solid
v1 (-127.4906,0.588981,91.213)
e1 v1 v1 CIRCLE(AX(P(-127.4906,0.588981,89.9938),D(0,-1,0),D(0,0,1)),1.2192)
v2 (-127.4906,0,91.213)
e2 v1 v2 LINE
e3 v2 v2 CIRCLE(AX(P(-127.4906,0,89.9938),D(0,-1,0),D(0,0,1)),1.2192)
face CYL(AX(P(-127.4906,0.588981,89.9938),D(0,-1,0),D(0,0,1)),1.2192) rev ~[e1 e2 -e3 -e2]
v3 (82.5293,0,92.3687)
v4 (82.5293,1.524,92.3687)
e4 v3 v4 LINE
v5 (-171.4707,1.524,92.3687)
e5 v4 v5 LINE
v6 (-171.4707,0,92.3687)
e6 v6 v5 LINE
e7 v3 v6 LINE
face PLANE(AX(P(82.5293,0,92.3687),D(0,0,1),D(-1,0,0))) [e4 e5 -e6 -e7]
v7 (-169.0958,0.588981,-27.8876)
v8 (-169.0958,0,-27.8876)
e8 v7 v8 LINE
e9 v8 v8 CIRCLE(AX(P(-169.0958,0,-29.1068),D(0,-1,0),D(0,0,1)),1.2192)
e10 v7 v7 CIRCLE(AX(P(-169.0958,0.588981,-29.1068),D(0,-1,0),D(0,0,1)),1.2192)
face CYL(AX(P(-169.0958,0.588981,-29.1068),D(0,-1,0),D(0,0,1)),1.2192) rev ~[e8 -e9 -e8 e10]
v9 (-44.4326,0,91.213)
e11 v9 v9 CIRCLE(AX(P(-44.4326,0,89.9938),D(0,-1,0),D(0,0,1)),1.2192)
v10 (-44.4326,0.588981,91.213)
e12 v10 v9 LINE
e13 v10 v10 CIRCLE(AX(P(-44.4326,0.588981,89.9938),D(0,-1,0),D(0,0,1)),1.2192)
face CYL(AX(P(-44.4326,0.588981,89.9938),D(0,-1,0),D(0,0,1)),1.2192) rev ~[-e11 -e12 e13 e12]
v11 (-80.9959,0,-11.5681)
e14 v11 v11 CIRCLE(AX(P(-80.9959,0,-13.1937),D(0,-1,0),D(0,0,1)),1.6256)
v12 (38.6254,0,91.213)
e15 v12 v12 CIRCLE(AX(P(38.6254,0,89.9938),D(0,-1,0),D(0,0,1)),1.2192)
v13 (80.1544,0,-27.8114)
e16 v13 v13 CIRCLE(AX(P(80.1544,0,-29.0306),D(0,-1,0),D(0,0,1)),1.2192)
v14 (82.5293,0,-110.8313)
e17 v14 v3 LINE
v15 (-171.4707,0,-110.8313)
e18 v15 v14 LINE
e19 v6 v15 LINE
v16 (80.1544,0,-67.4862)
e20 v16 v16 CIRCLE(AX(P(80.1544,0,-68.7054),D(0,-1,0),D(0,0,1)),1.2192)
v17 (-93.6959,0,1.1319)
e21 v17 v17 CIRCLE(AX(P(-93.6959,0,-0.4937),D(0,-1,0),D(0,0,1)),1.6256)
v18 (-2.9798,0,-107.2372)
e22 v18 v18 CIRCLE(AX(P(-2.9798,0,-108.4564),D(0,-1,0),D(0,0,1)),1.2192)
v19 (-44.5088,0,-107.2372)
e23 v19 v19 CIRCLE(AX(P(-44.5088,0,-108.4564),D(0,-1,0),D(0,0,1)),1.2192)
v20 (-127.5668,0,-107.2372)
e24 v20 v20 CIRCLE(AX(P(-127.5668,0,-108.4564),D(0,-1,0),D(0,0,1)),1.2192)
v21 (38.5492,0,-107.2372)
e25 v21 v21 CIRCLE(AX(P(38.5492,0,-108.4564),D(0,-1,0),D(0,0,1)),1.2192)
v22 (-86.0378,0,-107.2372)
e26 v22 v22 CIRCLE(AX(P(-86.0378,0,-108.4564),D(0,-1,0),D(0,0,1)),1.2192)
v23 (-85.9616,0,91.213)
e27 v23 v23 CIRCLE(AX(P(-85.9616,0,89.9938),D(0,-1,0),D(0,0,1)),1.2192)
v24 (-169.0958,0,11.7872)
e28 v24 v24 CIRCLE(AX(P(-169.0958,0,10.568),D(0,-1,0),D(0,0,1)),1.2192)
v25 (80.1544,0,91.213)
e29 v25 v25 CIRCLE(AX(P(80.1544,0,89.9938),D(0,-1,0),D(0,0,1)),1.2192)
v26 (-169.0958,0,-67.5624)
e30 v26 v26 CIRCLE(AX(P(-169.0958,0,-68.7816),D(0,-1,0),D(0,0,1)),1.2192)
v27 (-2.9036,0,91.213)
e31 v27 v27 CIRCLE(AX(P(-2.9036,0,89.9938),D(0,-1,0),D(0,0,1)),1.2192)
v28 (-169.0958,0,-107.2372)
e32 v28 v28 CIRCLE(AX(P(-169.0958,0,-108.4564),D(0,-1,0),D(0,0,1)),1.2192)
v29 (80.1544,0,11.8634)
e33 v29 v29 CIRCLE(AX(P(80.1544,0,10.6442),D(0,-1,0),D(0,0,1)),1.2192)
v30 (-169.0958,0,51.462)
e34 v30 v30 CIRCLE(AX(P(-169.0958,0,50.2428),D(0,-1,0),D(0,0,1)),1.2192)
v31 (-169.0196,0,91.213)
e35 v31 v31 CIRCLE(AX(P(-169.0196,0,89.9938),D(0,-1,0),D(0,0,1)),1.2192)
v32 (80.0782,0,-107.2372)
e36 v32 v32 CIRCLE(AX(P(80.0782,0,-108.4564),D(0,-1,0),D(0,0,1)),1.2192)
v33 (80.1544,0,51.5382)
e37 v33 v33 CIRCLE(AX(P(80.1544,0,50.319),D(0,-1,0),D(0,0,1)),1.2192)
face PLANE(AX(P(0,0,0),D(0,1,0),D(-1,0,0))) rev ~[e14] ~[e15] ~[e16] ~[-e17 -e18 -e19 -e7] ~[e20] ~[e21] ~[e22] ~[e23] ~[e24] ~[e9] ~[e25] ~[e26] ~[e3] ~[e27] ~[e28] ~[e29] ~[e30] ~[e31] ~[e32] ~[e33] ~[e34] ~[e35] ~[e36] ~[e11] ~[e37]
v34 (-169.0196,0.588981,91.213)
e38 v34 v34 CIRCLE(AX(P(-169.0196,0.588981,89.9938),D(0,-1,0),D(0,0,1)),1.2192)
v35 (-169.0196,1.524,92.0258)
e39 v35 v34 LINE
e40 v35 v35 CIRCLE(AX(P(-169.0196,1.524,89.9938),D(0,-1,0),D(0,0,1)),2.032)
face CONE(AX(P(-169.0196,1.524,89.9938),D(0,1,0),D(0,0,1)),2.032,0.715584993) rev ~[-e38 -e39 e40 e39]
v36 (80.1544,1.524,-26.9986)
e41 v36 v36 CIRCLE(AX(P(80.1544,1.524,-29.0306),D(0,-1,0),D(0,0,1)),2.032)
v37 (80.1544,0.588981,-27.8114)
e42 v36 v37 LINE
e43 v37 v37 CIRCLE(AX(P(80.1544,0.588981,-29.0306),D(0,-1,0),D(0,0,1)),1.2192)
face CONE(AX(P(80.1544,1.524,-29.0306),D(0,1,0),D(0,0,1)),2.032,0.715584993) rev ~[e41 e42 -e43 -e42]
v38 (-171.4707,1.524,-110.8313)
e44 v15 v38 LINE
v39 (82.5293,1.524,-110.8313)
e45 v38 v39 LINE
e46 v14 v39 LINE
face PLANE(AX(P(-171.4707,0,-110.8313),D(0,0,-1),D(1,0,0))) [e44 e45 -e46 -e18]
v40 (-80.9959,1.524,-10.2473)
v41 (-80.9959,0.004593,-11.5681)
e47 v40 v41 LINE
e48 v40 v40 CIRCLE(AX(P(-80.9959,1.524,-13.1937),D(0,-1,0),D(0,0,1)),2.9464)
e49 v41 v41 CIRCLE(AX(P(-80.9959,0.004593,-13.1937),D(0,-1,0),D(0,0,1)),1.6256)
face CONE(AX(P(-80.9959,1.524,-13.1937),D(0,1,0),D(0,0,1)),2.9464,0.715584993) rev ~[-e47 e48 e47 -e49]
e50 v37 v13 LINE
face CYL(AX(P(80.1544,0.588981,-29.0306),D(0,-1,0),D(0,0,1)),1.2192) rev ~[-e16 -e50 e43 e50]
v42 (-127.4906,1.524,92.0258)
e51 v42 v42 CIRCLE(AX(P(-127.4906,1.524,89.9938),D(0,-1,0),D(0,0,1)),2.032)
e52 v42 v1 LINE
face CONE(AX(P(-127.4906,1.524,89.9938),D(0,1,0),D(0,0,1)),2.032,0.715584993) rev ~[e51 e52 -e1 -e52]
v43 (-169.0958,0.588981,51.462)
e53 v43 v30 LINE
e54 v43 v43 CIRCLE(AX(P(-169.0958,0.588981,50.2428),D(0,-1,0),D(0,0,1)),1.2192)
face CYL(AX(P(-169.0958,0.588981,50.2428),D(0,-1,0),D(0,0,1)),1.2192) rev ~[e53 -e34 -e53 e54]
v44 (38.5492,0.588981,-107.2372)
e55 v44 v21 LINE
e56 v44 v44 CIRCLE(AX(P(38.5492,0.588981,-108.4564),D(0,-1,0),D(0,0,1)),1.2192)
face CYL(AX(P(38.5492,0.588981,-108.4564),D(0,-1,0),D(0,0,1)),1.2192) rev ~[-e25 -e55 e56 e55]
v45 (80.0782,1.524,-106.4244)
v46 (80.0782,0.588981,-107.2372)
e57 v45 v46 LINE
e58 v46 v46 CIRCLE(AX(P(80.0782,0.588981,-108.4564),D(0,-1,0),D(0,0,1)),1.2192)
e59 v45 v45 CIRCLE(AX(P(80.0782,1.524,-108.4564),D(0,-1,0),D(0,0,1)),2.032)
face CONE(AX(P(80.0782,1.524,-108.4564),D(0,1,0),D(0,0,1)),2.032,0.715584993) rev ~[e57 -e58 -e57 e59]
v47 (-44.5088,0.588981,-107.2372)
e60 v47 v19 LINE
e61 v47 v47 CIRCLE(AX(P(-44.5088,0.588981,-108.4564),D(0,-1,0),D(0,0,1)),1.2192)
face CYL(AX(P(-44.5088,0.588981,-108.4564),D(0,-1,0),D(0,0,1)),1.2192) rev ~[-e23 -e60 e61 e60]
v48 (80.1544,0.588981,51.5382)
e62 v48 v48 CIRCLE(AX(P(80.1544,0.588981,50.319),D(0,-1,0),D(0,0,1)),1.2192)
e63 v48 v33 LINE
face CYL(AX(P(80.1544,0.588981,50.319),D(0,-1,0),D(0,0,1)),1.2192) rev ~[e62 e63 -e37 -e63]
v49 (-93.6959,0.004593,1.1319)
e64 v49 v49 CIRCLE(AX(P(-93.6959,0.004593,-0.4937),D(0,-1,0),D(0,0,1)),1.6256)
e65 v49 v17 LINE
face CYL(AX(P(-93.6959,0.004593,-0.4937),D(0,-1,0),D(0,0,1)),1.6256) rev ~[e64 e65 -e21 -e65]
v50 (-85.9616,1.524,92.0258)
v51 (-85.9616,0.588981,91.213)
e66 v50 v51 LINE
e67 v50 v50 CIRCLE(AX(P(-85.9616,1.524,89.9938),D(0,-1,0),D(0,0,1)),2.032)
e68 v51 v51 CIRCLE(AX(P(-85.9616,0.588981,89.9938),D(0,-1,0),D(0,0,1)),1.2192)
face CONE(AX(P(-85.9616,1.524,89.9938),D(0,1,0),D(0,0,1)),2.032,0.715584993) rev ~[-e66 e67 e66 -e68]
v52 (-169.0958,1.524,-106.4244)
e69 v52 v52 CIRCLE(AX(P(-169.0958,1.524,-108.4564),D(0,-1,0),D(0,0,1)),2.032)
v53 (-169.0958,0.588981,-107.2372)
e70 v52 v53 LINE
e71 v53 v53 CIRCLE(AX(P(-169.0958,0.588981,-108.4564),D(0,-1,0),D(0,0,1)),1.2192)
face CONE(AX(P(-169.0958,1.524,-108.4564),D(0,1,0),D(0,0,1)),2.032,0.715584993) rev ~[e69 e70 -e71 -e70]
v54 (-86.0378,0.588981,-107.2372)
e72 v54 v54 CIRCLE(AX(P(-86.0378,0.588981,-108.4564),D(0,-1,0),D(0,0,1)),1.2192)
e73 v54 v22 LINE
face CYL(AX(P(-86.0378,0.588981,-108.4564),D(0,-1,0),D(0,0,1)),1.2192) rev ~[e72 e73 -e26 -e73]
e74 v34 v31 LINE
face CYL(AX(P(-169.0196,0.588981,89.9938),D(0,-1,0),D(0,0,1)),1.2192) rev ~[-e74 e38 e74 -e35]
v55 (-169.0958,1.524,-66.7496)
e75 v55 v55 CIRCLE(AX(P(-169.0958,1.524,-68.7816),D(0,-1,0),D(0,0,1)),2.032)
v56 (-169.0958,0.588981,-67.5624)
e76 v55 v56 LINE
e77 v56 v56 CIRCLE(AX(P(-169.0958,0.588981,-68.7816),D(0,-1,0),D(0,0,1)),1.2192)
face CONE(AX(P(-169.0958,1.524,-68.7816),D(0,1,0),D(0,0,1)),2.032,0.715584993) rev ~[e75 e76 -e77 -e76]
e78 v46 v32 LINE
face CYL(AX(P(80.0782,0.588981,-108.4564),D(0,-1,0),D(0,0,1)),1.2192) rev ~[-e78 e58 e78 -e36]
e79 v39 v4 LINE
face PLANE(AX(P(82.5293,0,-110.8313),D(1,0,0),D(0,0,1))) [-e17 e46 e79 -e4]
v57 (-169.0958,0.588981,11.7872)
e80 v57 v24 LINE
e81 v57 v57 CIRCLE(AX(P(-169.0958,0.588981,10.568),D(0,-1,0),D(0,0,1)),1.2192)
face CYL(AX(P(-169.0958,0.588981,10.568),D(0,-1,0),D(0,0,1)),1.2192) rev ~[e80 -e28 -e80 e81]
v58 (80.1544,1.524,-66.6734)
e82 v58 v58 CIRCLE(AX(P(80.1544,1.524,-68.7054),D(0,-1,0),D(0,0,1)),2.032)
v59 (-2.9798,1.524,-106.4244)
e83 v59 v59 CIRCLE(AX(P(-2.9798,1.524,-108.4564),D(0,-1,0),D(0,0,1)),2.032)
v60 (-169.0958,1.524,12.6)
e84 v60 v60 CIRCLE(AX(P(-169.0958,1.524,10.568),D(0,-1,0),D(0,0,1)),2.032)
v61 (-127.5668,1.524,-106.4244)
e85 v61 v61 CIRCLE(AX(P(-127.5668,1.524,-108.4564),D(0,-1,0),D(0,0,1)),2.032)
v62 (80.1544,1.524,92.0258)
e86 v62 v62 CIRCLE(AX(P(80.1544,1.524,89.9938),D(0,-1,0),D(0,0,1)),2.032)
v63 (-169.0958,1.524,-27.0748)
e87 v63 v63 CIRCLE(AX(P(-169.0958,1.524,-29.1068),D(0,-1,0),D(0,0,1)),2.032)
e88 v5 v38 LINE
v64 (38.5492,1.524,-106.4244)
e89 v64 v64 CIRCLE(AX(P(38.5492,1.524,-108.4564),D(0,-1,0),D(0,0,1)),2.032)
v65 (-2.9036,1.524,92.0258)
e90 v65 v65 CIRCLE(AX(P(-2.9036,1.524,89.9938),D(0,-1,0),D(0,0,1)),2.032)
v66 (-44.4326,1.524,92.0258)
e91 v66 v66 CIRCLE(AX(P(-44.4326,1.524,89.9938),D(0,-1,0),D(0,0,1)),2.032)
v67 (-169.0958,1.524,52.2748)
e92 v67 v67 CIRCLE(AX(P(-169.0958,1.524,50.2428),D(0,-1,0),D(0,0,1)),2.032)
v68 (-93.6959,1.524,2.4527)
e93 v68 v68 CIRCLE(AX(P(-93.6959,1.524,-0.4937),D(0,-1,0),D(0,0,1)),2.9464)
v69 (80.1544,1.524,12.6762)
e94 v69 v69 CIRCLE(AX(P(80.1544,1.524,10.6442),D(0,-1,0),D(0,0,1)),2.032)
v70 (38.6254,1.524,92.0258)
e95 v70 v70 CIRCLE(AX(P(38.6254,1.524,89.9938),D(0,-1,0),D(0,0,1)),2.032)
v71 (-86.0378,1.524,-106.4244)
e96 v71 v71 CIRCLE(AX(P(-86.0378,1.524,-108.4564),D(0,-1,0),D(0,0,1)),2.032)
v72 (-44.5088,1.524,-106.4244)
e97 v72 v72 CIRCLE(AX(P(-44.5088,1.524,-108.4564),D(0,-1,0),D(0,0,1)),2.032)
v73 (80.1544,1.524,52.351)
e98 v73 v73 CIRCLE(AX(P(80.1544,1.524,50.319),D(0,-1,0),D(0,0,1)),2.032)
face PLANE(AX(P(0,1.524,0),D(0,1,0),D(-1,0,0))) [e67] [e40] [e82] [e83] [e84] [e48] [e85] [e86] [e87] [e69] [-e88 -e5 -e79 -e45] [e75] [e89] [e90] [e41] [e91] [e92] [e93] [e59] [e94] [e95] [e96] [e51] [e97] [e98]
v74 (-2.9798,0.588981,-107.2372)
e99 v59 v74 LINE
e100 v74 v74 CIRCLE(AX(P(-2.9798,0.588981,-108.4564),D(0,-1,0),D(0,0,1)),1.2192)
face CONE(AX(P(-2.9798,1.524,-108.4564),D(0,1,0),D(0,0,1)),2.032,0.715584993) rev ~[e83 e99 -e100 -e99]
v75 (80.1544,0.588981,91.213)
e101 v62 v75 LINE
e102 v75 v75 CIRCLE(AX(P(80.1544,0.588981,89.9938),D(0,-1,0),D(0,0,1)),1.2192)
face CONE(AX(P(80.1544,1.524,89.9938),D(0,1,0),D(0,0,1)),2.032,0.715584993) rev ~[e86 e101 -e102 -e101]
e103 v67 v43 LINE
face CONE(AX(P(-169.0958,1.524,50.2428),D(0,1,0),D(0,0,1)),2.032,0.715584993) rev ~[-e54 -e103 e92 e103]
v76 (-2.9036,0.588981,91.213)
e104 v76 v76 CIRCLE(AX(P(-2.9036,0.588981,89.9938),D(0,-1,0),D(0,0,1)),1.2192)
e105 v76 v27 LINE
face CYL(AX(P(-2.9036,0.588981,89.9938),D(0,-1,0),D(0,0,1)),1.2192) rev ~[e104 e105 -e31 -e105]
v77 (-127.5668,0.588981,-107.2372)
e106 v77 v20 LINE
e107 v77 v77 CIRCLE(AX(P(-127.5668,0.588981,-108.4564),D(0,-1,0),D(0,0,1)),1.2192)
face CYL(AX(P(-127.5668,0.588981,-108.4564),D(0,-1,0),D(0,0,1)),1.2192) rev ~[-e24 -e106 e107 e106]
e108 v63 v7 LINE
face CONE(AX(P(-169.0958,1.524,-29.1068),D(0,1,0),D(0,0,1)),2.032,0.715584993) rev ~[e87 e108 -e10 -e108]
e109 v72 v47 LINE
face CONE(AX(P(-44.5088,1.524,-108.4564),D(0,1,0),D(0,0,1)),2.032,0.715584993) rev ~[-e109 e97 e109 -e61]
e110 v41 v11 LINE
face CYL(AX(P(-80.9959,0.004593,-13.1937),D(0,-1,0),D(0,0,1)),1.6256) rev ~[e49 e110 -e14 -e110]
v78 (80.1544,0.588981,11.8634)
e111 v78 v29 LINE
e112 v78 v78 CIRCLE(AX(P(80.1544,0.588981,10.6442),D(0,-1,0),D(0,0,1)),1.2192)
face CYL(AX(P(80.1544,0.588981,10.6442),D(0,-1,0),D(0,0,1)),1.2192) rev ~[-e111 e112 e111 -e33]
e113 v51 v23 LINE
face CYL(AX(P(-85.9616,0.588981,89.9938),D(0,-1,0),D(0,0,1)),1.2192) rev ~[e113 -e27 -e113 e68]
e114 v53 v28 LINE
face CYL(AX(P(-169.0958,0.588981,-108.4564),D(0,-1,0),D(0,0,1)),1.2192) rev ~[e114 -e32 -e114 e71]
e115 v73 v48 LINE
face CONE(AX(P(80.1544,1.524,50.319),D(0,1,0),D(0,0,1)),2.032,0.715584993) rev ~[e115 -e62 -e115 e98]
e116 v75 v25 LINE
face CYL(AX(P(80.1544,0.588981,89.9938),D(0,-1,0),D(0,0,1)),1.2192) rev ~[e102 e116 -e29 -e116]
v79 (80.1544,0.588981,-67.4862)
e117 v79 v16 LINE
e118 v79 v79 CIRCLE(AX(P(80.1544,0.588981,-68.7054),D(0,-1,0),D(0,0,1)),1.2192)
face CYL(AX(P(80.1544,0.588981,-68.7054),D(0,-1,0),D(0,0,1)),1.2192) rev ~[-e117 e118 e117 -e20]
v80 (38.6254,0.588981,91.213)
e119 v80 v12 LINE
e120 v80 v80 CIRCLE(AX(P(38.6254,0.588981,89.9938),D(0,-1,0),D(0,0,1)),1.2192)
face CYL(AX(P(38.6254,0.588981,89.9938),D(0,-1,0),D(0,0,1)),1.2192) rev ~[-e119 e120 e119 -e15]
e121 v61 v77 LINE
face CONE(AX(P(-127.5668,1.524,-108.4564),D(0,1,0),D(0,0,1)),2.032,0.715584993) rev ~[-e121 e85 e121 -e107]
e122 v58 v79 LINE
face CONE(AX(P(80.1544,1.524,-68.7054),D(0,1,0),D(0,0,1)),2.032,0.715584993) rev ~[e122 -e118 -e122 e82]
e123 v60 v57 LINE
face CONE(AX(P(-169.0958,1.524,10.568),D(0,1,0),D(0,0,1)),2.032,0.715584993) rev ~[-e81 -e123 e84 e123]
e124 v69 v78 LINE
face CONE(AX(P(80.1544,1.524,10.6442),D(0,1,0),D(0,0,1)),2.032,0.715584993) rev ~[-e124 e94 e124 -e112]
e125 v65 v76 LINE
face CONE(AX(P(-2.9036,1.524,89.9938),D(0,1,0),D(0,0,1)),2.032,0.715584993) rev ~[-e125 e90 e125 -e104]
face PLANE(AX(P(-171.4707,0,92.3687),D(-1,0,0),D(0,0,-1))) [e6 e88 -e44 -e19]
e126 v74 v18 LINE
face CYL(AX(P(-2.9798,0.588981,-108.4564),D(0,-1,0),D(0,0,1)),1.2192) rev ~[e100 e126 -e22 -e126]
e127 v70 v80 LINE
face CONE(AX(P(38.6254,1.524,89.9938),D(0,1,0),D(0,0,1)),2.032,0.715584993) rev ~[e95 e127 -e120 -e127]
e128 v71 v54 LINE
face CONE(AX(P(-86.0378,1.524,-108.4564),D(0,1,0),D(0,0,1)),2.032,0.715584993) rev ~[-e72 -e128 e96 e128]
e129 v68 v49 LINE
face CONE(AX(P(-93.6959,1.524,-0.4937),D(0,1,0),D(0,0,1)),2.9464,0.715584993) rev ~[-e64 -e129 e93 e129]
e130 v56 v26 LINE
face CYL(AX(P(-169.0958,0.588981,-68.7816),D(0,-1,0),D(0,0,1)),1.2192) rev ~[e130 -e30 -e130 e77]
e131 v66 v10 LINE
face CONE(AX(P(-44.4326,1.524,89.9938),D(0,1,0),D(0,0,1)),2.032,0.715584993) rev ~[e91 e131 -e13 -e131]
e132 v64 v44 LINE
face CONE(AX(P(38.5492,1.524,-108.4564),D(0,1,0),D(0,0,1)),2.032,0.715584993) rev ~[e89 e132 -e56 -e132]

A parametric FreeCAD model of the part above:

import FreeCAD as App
import Part
import Sketcher

V = App.Vector
Q = App.Units.Quantity

doc = App.newDocument("Part")
body = doc.addObject("PartDesign::Body", "Body")

sketch1 = doc.addObject("Sketcher::SketchObject", "Sketch")
body.addObject(sketch1)
sketch1.AttachmentSupport = (doc.XZ_Plane, [""])
sketch1.MapMode = "FlatFace"
sketch1.addGeometry([
    Part.LineSegment(V(-171, 92, 0), V(83, 92, 0)),
    Part.LineSegment(V(83, 92, 0), V(83, -111, 0)),
    Part.LineSegment(V(83, -111, 0), V(-171, -111, 0)),
    Part.LineSegment(V(-171, -111, 0), V(-171, 92, 0)),
], False)
sketch1.addConstraint([
    Sketcher.Constraint("Coincident", 0, 2, 1, 1),
    Sketcher.Constraint("Coincident", 1, 2, 2, 1),
    Sketcher.Constraint("Coincident", 2, 2, 3, 1),
    Sketcher.Constraint("Coincident", 3, 2, 0, 1),
    Sketcher.Constraint("Horizontal", 0),
    Sketcher.Constraint("Vertical", 1),
    Sketcher.Constraint("Horizontal", 2),
    Sketcher.Constraint("Vertical", 3),
    Sketcher.Constraint("DistanceX", 0, 1, 0, 2, Q("10 in")),
    Sketcher.Constraint("DistanceY", 1, 2, 1, 1, Q("8 in")),
    Sketcher.Constraint("DistanceX", -1, 1, 0, 2, Q("82.5293 mm")),
    Sketcher.Constraint("DistanceY", -1, 1, 0, 2, Q("92.3687 mm")),
])
pad1 = doc.addObject("PartDesign::Pad", "Pad")
body.addObject(pad1)
pad1.Profile = sketch1
pad1.Length = Q("0.06 in")
pad1.Reversed = True

sketch2 = doc.addObject("Sketcher::SketchObject", "Sketch001")
body.addObject(sketch2)
sketch2.AttachmentSupport = (doc.XZ_Plane, [""])
sketch2.MapMode = "FlatFace"
sketch2.AttachmentOffset = App.Placement(V(0, 0, -0.06 * 25.4), App.Rotation())
sketch2.addGeometry(Part.Circle(V(-169.1, -108.5, 0), V(0, 0, 1), 1.2), False)
sketch2.addConstraint([
    Sketcher.Constraint("Diameter", 0, Q("0.096 in")),
    Sketcher.Constraint("DistanceX", 0, 3, -1, 1, Q("169.0958 mm")),
    Sketcher.Constraint("DistanceY", 0, 3, -1, 1, Q("108.4564 mm")),
])
doc.recompute()
hole = doc.addObject("PartDesign::Hole", "Hole")
body.addObject(hole)
hole.Profile = sketch2
hole.ThreadType = "None"
hole.Diameter = Q("0.096 in")
hole.DepthType = "Dimension"
hole.Depth = Q("1 in")
hole.DrillPoint = "Angled"
hole.DrillPointAngle = 118
hole.HoleCutType = "Countersink"
hole.HoleCutDiameter = Q("0.16 in")
hole.HoleCutCountersinkAngle = 82
hole.Reversed = True
doc.recompute()

linearpattern = doc.addObject("PartDesign::LinearPattern", "LinearPattern")
body.addObject(linearpattern)
linearpattern.Originals = [hole]
linearpattern.Direction = (doc.X_Axis, [""])
linearpattern.Mode = "offset"
linearpattern.Offset = Q("1.635 in")
linearpattern.Occurrences = 7
body.Tip = linearpattern
doc.recompute()

linearpattern2 = doc.addObject("PartDesign::LinearPattern", "LinearPattern001")
body.addObject(linearpattern2)
linearpattern2.Originals = [hole]
linearpattern2.Direction = (doc.Z_Axis, [""])
linearpattern2.Mode = "offset"
linearpattern2.Offset = Q("1.562 in")
linearpattern2.Occurrences = 5
body.Tip = linearpattern2

sketch3 = doc.addObject("Sketcher::SketchObject", "Sketch002")
body.addObject(sketch3)
sketch3.AttachmentSupport = (doc.XZ_Plane, [""])
sketch3.MapMode = "FlatFace"
sketch3.AttachmentOffset = App.Placement(V(0, 0, -0.06 * 25.4), App.Rotation())
sketch3.addGeometry(Part.Circle(V(80.2, 90, 0), V(0, 0, 1), 1.2), False)
sketch3.addConstraint([
    Sketcher.Constraint("Diameter", 0, Q("0.096 in")),
    Sketcher.Constraint("DistanceX", -1, 1, 0, 3, Q("80.1544 mm")),
    Sketcher.Constraint("DistanceY", -1, 1, 0, 3, Q("89.9938 mm")),
])
doc.recompute()
hole2 = doc.addObject("PartDesign::Hole", "Hole001")
body.addObject(hole2)
hole2.Profile = sketch3
hole2.ThreadType = "None"
hole2.Diameter = Q("0.096 in")
hole2.DepthType = "Dimension"
hole2.Depth = Q("1 in")
hole2.DrillPoint = "Angled"
hole2.DrillPointAngle = 118
hole2.HoleCutType = "Countersink"
hole2.HoleCutDiameter = Q("0.16 in")
hole2.HoleCutCountersinkAngle = 82
hole2.Reversed = True
doc.recompute()

linearpattern3 = doc.addObject("PartDesign::LinearPattern", "LinearPattern002")
body.addObject(linearpattern3)
linearpattern3.Originals = [hole2]
linearpattern3.Direction = (doc.Z_Axis, [""])
linearpattern3.Mode = "offset"
linearpattern3.Offset = Q("1.562 in")
linearpattern3.Occurrences = 5
linearpattern3.Reversed = True
body.Tip = linearpattern3
doc.recompute()

linearpattern4 = doc.addObject("PartDesign::LinearPattern", "LinearPattern003")
body.addObject(linearpattern4)
linearpattern4.Originals = [hole2]
linearpattern4.Direction = (doc.X_Axis, [""])
linearpattern4.Mode = "offset"
linearpattern4.Offset = Q("1.635 in")
linearpattern4.Occurrences = 7
linearpattern4.Reversed = True
body.Tip = linearpattern4

sketch4 = doc.addObject("Sketcher::SketchObject", "Sketch003")
body.addObject(sketch4)
sketch4.AttachmentSupport = (doc.XZ_Plane, [""])
sketch4.MapMode = "FlatFace"
sketch4.AttachmentOffset = App.Placement(V(0, 0, -0.06 * 25.4), App.Rotation())
sketch4.addGeometry(Part.Circle(V(-93.7, -0.5, 0), V(0, 0, 1), 1.6), False)
sketch4.addConstraint([
    Sketcher.Constraint("Diameter", 0, Q("0.128 in")),
    Sketcher.Constraint("DistanceX", 0, 3, -1, 1, Q("93.696 mm")),
    Sketcher.Constraint("DistanceY", 0, 3, -1, 1, Q("0.4937 mm")),
])
doc.recompute()
hole3 = doc.addObject("PartDesign::Hole", "Hole002")
body.addObject(hole3)
hole3.Profile = sketch4
hole3.ThreadType = "None"
hole3.Diameter = Q("0.128 in")
hole3.DepthType = "Dimension"
hole3.Depth = Q("0.06 in")
hole3.DrillPoint = "Angled"
hole3.DrillPointAngle = 118
hole3.HoleCutType = "Countersink"
hole3.HoleCutDiameter = Q("0.232 in")
hole3.HoleCutCountersinkAngle = 82
hole3.Reversed = True

sketch5 = doc.addObject("Sketcher::SketchObject", "Sketch004")
body.addObject(sketch5)
sketch5.AttachmentSupport = (doc.XZ_Plane, [""])
sketch5.MapMode = "FlatFace"
sketch5.AttachmentOffset = App.Placement(V(0, 0, -0.06 * 25.4), App.Rotation())
sketch5.addGeometry(Part.Circle(V(-81, -13.2, 0), V(0, 0, 1), 1.6), False)
sketch5.addConstraint([
    Sketcher.Constraint("Diameter", 0, Q("0.128 in")),
    Sketcher.Constraint("DistanceX", 0, 3, -1, 1, Q("80.996 mm")),
    Sketcher.Constraint("DistanceY", 0, 3, -1, 1, Q("13.1937 mm")),
])
doc.recompute()
hole4 = doc.addObject("PartDesign::Hole", "Hole003")
body.addObject(hole4)
hole4.Profile = sketch5
hole4.ThreadType = "None"
hole4.Diameter = Q("0.128 in")
hole4.DepthType = "Dimension"
hole4.Depth = Q("1 in")
hole4.DrillPoint = "Angled"
hole4.DrillPointAngle = 118
hole4.HoleCutType = "Countersink"
hole4.HoleCutDiameter = Q("0.232 in")
hole4.HoleCutCountersinkAngle = 82
hole4.Reversed = True

doc.recompute()
